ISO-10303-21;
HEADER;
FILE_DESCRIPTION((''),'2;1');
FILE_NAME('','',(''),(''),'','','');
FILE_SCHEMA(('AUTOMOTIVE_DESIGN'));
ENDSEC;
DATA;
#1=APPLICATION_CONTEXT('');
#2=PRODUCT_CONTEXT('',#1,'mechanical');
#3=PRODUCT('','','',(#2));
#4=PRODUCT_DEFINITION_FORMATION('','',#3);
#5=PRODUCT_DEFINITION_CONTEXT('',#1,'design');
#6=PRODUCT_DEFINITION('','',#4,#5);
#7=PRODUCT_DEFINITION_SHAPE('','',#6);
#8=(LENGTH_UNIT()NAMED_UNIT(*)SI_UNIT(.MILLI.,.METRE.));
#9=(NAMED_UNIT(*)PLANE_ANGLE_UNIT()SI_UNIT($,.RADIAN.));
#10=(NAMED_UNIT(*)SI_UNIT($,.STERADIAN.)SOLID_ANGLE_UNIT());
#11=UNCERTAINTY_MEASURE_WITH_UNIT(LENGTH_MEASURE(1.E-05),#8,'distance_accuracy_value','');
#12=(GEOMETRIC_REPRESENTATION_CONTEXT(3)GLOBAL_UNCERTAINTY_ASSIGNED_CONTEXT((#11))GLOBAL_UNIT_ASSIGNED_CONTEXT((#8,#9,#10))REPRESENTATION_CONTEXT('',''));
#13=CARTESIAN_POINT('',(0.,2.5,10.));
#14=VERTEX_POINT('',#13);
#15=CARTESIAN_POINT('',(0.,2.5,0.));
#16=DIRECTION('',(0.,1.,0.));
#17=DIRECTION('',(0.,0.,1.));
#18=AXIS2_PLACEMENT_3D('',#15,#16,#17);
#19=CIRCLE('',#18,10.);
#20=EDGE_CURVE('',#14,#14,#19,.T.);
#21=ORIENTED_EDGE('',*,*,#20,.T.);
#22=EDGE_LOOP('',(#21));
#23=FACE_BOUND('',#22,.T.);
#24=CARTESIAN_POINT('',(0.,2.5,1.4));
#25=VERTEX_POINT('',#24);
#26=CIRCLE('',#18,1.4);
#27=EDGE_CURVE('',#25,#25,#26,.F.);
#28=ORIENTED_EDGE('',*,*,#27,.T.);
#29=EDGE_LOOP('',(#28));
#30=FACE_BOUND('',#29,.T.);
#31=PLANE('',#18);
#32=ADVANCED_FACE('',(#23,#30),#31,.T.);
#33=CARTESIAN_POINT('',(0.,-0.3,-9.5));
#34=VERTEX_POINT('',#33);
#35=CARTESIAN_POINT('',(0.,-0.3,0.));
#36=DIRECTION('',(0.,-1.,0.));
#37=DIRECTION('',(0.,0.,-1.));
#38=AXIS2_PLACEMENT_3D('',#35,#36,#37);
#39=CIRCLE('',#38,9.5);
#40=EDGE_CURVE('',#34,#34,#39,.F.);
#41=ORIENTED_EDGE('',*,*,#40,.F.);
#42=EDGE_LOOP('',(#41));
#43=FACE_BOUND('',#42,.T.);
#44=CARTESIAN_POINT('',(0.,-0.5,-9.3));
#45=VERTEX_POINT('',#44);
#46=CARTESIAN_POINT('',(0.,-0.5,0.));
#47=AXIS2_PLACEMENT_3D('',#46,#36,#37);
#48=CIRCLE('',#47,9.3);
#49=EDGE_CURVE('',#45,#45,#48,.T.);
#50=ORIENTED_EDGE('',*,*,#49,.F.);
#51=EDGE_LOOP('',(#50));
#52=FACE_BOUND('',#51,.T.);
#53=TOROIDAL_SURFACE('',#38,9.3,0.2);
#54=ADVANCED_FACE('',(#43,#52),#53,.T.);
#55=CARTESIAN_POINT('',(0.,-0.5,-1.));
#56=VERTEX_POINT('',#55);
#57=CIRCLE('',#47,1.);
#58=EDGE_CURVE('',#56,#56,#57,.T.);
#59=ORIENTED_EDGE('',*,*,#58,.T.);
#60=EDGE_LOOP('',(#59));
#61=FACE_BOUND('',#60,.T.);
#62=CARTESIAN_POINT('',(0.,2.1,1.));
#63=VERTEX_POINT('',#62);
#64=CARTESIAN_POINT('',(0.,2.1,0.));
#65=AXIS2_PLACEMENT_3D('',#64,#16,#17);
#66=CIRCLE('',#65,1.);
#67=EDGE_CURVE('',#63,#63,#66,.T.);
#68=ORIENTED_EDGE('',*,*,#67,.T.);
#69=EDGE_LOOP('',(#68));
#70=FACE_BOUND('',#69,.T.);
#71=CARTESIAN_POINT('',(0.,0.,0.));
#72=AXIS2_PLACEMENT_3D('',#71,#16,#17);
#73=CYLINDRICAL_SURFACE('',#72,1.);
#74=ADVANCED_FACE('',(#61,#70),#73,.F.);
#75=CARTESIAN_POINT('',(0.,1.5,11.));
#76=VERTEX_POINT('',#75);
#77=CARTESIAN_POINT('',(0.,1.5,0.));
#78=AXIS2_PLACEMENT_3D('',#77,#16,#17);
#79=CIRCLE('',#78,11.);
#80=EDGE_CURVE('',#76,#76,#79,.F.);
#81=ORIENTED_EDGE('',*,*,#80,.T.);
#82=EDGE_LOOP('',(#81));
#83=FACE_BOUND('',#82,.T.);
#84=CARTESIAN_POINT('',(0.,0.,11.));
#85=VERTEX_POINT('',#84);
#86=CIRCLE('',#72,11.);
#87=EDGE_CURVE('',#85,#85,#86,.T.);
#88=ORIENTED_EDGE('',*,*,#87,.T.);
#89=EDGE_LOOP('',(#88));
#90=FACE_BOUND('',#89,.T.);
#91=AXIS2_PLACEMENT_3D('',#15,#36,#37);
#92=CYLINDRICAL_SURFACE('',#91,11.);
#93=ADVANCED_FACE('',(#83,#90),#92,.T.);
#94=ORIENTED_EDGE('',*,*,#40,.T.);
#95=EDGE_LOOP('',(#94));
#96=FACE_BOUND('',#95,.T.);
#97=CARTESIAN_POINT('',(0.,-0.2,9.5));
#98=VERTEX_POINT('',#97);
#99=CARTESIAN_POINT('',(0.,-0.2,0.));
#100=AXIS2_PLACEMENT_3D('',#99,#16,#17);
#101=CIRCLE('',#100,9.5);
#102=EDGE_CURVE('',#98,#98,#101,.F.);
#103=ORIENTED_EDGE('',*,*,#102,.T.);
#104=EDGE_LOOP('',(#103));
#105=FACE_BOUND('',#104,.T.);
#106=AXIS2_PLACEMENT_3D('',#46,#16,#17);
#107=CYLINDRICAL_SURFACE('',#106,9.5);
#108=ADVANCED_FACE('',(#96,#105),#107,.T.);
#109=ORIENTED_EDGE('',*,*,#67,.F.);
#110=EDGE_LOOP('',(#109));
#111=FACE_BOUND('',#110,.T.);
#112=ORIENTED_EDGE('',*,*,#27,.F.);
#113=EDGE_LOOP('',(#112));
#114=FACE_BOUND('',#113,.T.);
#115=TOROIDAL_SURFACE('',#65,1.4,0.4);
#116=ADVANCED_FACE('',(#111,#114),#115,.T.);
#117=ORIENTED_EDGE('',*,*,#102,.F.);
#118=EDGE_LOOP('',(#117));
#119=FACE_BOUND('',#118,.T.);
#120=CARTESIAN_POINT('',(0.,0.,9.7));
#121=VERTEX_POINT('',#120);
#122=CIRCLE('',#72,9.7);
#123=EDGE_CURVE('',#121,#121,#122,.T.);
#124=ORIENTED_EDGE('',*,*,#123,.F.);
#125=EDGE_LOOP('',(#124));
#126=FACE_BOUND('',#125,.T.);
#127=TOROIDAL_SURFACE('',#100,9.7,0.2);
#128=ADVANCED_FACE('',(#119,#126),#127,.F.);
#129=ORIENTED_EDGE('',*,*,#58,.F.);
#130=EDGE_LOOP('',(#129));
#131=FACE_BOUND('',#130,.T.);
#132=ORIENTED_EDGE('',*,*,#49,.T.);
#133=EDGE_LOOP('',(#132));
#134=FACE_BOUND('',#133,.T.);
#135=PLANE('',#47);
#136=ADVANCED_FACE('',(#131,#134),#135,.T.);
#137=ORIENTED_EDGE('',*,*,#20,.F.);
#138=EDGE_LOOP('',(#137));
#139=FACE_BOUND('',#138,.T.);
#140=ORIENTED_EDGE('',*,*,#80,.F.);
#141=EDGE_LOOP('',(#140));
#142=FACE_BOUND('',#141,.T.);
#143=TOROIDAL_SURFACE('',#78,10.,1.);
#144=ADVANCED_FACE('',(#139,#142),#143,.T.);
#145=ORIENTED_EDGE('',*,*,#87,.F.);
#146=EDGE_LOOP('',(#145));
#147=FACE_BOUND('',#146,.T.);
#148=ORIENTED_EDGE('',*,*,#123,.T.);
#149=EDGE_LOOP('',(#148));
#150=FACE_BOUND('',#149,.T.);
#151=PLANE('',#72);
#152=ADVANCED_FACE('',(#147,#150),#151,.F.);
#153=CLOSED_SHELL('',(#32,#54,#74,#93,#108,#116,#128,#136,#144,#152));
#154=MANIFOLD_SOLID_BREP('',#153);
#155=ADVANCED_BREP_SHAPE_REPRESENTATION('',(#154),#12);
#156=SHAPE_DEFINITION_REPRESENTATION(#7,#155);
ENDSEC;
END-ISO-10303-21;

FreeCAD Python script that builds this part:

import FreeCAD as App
import Part
import Sketcher

V = App.Vector


def edges_at(feature, points):
    """Names of the edges that pass closest to the given points."""
    edges = feature.Shape.Edges
    near = lambda p: min(range(len(edges)), key=lambda i: edges[i].distToShape(Part.Vertex(*p))[0])
    return sorted({f"Edge{near(p) + 1}" for p in points})

doc = App.newDocument("Part")
params = doc.addObject("Spreadsheet::Sheet", "Params")
for row, (alias, value) in enumerate([
    ("sketch1_diameter", "22 mm"),
    ("pad1_length", "2.5 mm"),
    ("sketch2_diameter", "2 mm"),
    ("fillet_radius", "0.4 mm"),
    ("fillet2_radius", "1 mm"),
    ("sketch3_diameter", "19 mm"),
    ("sketch3_diameter2", "2 mm"),
    ("pad2_length", "0.5 mm"),
    ("fillet3_radius", "0.2 mm"),
], start=1):
    params.set(f"A{row}", alias)
    params.set(f"B{row}", "=" + value)
    params.setAlias(f"B{row}", alias)

body = doc.addObject("PartDesign::Body", "Body")

sketch1 = body.newObject("Sketcher::SketchObject", "Sketch")
sketch1.AttachmentSupport = (doc.getObject("XZ_Plane"), [""])
sketch1.MapMode = "FlatFace"
sketch1.addGeometry(Part.Circle(V(0, 0, 0), V(0, 0, 1), 11), False)
sketch1.addConstraint([
    Sketcher.Constraint("Coincident", 0, 3, -1, 1),
    Sketcher.Constraint("Diameter", 0, 22.0),
])
sketch1.setExpression("Constraints[1]", "Params.sketch1_diameter")
pad1 = body.newObject("PartDesign::Pad", "Pad")
pad1.Profile = sketch1
pad1.setExpression("Length", "Params.pad1_length")
pad1.Reversed = True

sketch2 = body.newObject("Sketcher::SketchObject", "Sketch001")
sketch2.AttachmentSupport = (doc.getObject("XZ_Plane"), [""])
sketch2.MapMode = "FlatFace"
sketch2.AttachmentOffset = App.Placement(V(0, 0, -2.5), App.Rotation())
sketch2.addGeometry(Part.Circle(V(0, 0, 0), V(0, 0, 1), 1), False)
sketch2.addConstraint([
    Sketcher.Constraint("Coincident", 0, 3, -1, 1),
    Sketcher.Constraint("Diameter", 0, 2.0),
])
sketch2.setExpression("Constraints[1]", "Params.sketch2_diameter")
pocket1 = body.newObject("PartDesign::Pocket", "Pocket")
pocket1.Profile = sketch2
pocket1.Type = "ThroughAll"
pocket1.Reversed = True
doc.recompute()

fillet = body.newObject("PartDesign::Fillet", "Fillet")
fillet.Base = (pocket1, edges_at(pocket1, [(-1, 2.5, 0)]))
fillet.setExpression("Radius", "Params.fillet_radius")
doc.recompute()

fillet2 = body.newObject("PartDesign::Fillet", "Fillet001")
fillet2.Base = (fillet, edges_at(fillet, [(-11, 2.5, 0)]))
fillet2.setExpression("Radius", "Params.fillet2_radius")

sketch3 = body.newObject("Sketcher::SketchObject", "Sketch002")
sketch3.AttachmentSupport = (doc.getObject("XZ_Plane"), [""])
sketch3.MapMode = "FlatFace"
sketch3.addGeometry([
    Part.Circle(V(0, 0, 0), V(0, 0, 1), 9.5),
    Part.Circle(V(0, 0, 0), V(0, 0, 1), 1),
], False)
sketch3.addConstraint([
    Sketcher.Constraint("Coincident", 0, 3, -1, 1),
    Sketcher.Constraint("Coincident", 1, 3, -1, 1),
    Sketcher.Constraint("Diameter", 0, 19.0),
    Sketcher.Constraint("Diameter", 1, 2.0),
])
sketch3.setExpression("Constraints[2]", "Params.sketch3_diameter")
sketch3.setExpression("Constraints[3]", "Params.sketch3_diameter2")
pad2 = body.newObject("PartDesign::Pad", "Pad001")
pad2.Profile = sketch3
pad2.setExpression("Length", "Params.pad2_length")
doc.recompute()

fillet3 = body.newObject("PartDesign::Fillet", "Fillet002")
fillet3.Base = (pad2, edges_at(pad2, [(-9.5, 0, 0), (-9.5, -0.5, 0)]))
fillet3.setExpression("Radius", "Params.fillet3_radius")

doc.recompute()
